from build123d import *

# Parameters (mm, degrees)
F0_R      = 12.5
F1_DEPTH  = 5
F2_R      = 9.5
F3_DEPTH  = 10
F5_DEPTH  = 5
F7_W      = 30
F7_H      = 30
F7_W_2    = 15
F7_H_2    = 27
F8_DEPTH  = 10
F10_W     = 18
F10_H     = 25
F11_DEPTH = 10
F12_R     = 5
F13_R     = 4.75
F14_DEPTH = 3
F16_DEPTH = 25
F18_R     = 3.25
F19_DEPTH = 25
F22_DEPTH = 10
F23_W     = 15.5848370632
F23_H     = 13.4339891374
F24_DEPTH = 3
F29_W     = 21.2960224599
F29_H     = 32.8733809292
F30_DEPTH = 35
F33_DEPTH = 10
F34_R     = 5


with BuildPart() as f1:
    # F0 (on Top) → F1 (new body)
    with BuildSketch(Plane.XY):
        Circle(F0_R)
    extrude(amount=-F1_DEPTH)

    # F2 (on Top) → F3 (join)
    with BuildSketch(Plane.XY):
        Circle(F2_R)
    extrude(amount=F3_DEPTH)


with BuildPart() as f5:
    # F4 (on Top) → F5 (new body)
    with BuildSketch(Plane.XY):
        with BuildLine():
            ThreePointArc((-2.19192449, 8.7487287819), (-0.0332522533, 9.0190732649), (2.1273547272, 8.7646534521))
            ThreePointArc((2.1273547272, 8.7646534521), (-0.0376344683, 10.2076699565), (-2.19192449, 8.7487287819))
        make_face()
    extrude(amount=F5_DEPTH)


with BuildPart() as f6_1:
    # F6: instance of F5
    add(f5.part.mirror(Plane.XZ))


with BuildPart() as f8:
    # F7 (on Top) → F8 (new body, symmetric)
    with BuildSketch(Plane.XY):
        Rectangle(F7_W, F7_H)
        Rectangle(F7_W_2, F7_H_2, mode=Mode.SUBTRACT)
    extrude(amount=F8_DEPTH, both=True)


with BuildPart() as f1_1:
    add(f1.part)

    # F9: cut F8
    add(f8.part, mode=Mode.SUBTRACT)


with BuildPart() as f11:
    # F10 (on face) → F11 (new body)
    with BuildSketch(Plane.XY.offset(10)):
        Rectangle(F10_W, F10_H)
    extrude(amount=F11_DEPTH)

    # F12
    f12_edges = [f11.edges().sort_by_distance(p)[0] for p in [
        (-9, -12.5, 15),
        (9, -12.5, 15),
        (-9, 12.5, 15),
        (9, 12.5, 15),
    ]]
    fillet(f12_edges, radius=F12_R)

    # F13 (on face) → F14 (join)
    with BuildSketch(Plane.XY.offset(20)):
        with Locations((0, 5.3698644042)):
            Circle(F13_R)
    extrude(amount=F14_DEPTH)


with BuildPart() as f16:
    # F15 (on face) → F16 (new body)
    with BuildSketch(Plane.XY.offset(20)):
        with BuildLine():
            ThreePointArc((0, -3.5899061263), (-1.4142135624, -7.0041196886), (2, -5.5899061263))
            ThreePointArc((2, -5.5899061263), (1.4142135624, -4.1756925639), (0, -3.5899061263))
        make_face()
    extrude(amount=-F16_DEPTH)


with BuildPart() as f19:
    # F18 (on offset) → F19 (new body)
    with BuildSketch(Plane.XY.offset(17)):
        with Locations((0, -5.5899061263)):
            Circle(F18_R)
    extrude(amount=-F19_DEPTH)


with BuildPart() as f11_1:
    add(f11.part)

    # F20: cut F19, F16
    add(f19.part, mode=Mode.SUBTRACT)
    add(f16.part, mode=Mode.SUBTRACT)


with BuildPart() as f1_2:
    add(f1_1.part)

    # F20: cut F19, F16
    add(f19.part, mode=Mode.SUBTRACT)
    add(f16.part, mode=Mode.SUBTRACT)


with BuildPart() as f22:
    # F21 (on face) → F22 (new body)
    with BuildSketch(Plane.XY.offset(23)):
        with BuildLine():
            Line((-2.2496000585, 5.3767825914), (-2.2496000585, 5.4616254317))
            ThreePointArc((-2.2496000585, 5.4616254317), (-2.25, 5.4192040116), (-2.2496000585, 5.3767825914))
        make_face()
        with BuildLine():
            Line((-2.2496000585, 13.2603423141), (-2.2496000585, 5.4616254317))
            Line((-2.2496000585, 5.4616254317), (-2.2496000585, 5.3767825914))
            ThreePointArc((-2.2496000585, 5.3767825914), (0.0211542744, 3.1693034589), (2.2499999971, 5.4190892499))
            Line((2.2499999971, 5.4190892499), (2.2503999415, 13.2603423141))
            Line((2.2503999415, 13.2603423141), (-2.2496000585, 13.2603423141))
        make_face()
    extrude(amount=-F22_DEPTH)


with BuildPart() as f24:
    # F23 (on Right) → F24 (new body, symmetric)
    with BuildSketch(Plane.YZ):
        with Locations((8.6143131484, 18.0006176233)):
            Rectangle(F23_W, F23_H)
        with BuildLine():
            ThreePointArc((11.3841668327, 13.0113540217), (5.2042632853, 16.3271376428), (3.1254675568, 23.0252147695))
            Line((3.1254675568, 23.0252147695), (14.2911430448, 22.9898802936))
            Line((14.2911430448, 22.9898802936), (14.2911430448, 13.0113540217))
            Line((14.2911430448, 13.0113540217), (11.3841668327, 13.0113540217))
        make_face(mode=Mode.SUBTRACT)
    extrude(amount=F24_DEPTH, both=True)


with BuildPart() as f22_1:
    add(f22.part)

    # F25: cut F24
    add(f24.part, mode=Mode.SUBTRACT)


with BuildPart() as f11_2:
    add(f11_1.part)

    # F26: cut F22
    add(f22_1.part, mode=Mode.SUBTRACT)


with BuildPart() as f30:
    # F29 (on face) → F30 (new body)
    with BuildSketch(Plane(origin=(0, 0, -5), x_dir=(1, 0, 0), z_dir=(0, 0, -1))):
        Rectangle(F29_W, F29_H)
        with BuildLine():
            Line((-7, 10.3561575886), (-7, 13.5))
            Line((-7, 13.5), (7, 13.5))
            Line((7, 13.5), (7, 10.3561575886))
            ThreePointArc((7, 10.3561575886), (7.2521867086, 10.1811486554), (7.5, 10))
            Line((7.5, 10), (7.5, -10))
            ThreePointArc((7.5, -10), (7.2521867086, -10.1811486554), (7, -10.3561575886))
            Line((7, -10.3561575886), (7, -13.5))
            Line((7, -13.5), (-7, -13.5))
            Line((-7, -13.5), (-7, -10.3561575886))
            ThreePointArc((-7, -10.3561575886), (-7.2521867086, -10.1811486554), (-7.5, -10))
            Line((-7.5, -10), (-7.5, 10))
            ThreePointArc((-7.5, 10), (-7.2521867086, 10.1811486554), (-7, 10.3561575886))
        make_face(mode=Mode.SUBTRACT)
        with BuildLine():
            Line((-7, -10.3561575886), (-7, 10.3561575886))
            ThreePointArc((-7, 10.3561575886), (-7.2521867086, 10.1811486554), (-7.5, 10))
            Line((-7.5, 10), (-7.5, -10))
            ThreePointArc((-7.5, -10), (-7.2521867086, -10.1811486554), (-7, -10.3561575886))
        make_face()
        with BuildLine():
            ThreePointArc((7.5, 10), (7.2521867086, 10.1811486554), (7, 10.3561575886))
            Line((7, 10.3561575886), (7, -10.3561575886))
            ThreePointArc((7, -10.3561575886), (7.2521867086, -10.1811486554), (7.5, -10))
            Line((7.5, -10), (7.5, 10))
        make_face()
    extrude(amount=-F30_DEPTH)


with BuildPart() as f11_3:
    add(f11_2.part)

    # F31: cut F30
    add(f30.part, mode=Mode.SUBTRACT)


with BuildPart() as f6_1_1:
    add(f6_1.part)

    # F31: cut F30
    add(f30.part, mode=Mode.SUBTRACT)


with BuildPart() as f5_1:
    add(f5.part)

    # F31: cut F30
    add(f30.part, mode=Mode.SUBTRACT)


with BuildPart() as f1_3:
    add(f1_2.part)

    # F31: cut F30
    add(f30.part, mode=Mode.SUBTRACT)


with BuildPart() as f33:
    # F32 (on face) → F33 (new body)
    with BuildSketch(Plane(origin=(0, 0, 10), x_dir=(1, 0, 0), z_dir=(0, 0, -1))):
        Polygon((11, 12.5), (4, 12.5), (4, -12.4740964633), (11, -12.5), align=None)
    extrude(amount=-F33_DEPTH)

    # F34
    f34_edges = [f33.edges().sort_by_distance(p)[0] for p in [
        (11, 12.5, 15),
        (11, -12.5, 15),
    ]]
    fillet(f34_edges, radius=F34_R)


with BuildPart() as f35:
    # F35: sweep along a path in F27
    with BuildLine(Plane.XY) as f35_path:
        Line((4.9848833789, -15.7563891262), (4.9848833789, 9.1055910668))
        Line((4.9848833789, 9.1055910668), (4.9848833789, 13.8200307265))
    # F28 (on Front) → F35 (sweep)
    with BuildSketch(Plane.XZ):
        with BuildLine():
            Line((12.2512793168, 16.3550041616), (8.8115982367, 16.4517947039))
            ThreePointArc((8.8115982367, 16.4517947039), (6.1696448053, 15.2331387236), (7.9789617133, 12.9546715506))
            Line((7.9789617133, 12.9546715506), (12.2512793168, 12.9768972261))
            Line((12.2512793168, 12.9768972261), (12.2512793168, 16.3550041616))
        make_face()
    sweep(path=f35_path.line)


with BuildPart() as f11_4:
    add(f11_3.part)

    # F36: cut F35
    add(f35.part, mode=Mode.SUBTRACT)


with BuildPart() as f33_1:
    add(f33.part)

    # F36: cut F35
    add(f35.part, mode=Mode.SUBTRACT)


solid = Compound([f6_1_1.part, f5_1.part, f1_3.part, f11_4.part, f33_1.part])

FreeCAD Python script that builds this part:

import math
import FreeCAD as App
import Part
import Sketcher

V = App.Vector


def edges_at(feature, points):
    """Names of the edges that pass closest to the given points."""
    edges = feature.Shape.Edges
    near = lambda p: min(range(len(edges)), key=lambda i: edges[i].distToShape(Part.Vertex(*p))[0])
    return sorted({f"Edge{near(p) + 1}" for p in points})

doc = App.newDocument("Part")
body = doc.addObject("PartDesign::Body", "Body")

sketch1 = body.newObject("Sketcher::SketchObject", "Sketch")
sketch1.AttachmentSupport = (doc.getObject("XY_Plane"), [""])
sketch1.MapMode = "FlatFace"
sketch1.addGeometry(Part.Circle(V(0, 0, 0), V(0, 0, 1), 12.5), False)
sketch1.addConstraint([
    Sketcher.Constraint("Coincident", 0, 3, -1, 1),
    Sketcher.Constraint("Diameter", 0, 25.0),
])
pad1 = body.newObject("PartDesign::Pad", "Pad")
pad1.Profile = sketch1
pad1.Length = 5
pad1.Reversed = True

sketch2 = body.newObject("Sketcher::SketchObject", "Sketch001")
sketch2.AttachmentSupport = (doc.getObject("XY_Plane"), [""])
sketch2.MapMode = "FlatFace"
sketch2.addGeometry(Part.Circle(V(0, 0, 0), V(0, 0, 1), 9.5), False)
sketch2.addConstraint([
    Sketcher.Constraint("Coincident", 0, 3, -1, 1),
    Sketcher.Constraint("Diameter", 0, 19.0),
])
pad2 = body.newObject("PartDesign::Pad", "Pad001")
pad2.Profile = sketch2
pad2.Length = 10
body2 = doc.addObject("PartDesign::Body", "Body001")

sketch3 = body2.newObject("Sketcher::SketchObject", "Sketch002")
sketch3.AttachmentSupport = (doc.getObject("XY_Plane001"), [""])
sketch3.MapMode = "FlatFace"
sketch3.addGeometry([
    Part.ArcOfCircle(Part.Circle(V(0, 0, 0), V(0, 0, 1), 9.019135), math.radians(76.357013), math.radians(104.06547)),
    Part.ArcOfCircle(Part.Circle(V(-0.029034, 7.874975, 0), V(0, 0, 1), 2.332711), math.radians(22.41997), math.radians(158.002514)),
], False)
sketch3.addConstraint([
    Sketcher.Constraint("Coincident", 0, 1, 1, 1),
    Sketcher.Constraint("Coincident", 1, 2, 0, 2),
    Sketcher.Constraint("Coincident", 0, 3, -1, 1),
    Sketcher.Constraint("Radius", 1, 2.332711),
    Sketcher.Constraint("Radius", 0, 9.019135),
    Sketcher.Constraint("DistanceY", -1, 1, 1, 2, 8.748729),
    Sketcher.Constraint("DistanceX", 1, 3, 0, 1, 2.156389),
])
pad3 = body2.newObject("PartDesign::Pad", "Pad002")
pad3.Profile = sketch3
pad3.Length = 5
body3 = doc.addObject("PartDesign::Body", "Body002")
doc.recompute()

mirroring = doc.addObject("Part::Mirroring", "Mirroring")
mirroring.Source = body2
mirroring.Base = V(0, 0, 0)
mirroring.Normal = V(0, -1, 0)
body3.BaseFeature = mirroring
doc.recompute()
body4 = doc.addObject("PartDesign::Body", "Body003")

sketch4 = body4.newObject("Sketcher::SketchObject", "Sketch003")
sketch4.AttachmentSupport = (doc.getObject("XY_Plane003"), [""])
sketch4.MapMode = "FlatFace"
sketch4.addGeometry([
    Part.LineSegment(V(-15, 15, 0), V(-15, -15, 0)),
    Part.LineSegment(V(-15, -15, 0), V(15, -15, 0)),
    Part.LineSegment(V(15, -15, 0), V(15, 15, 0)),
    Part.LineSegment(V(15, 15, 0), V(-15, 15, 0)),
    Part.LineSegment(V(7.5, -13.5, 0), V(-7.5, -13.5, 0)),
    Part.LineSegment(V(-7.5, -13.5, 0), V(-7.5, 13.5, 0)),
    Part.LineSegment(V(-7.5, 13.5, 0), V(7.5, 13.5, 0)),
    Part.LineSegment(V(7.5, 13.5, 0), V(7.5, -13.5, 0)),
], False)
sketch4.addConstraint([
    Sketcher.Constraint("Coincident", 0, 2, 1, 1),
    Sketcher.Constraint("Coincident", 1, 2, 2, 1),
    Sketcher.Constraint("Coincident", 2, 2, 3, 1),
    Sketcher.Constraint("Coincident", 3, 2, 0, 1),
    Sketcher.Constraint("Coincident", 4, 2, 5, 1),
    Sketcher.Constraint("Coincident", 5, 2, 6, 1),
    Sketcher.Constraint("Coincident", 6, 2, 7, 1),
    Sketcher.Constraint("Coincident", 7, 2, 4, 1),
    Sketcher.Constraint("Vertical", 0),
    Sketcher.Constraint("Horizontal", 1),
    Sketcher.Constraint("Vertical", 2),
    Sketcher.Constraint("Horizontal", 3),
    Sketcher.Constraint("Horizontal", 4),
    Sketcher.Constraint("Vertical", 5),
    Sketcher.Constraint("Horizontal", 6),
    Sketcher.Constraint("Vertical", 7),
    Sketcher.Constraint("Symmetric", 0, 2, 2, 2, -1, 1),
    Sketcher.Constraint("Symmetric", 4, 2, 6, 2, -1, 1),
    Sketcher.Constraint("Equal", 3, 0),
    Sketcher.Constraint("DistanceX", 1, 1, 1, 2, 30.0),
    Sketcher.Constraint("DistanceX", 4, 2, 4, 1, 15.0),
    Sketcher.Constraint("DistanceY", 5, 1, 5, 2, 27.0),
])
pad4 = body4.newObject("PartDesign::Pad", "Pad003")
pad4.Profile = sketch4
pad4.Length = 20
pad4.Midplane = True
doc.recompute()

boolean = body.newObject("PartDesign::Boolean", "Boolean")
boolean.Type = "Cut"
boolean.addObjects([body4])
body5 = doc.addObject("PartDesign::Body", "Body004")

sketch5 = body5.newObject("Sketcher::SketchObject", "Sketch004")
sketch5.AttachmentSupport = (doc.getObject("XY_Plane004"), [""])
sketch5.MapMode = "FlatFace"
sketch5.AttachmentOffset = App.Placement(V(0, 0, 10), App.Rotation())
sketch5.addGeometry([
    Part.LineSegment(V(-9, 12.5, 0), V(-9, -12.5, 0)),
    Part.LineSegment(V(-9, -12.5, 0), V(9, -12.5, 0)),
    Part.LineSegment(V(9, -12.5, 0), V(9, 12.5, 0)),
    Part.LineSegment(V(9, 12.5, 0), V(-9, 12.5, 0)),
], False)
sketch5.addConstraint([
    Sketcher.Constraint("Coincident", 0, 2, 1, 1),
    Sketcher.Constraint("Coincident", 1, 2, 2, 1),
    Sketcher.Constraint("Coincident", 2, 2, 3, 1),
    Sketcher.Constraint("Coincident", 3, 2, 0, 1),
    Sketcher.Constraint("Vertical", 0),
    Sketcher.Constraint("Horizontal", 1),
    Sketcher.Constraint("Vertical", 2),
    Sketcher.Constraint("Horizontal", 3),
    Sketcher.Constraint("Symmetric", 0, 2, 2, 2, -1, 1),
    Sketcher.Constraint("DistanceX", 1, 1, 1, 2, 18.0),
    Sketcher.Constraint("DistanceY", 0, 2, 0, 1, 25.0),
])
pad5 = body5.newObject("PartDesign::Pad", "Pad004")
pad5.Profile = sketch5
pad5.Length = 10
doc.recompute()

fillet = body5.newObject("PartDesign::Fillet", "Fillet")
fillet.Base = (pad5, edges_at(pad5, [
    (-9, -12.5, 15),
    (9, -12.5, 15),
    (-9, 12.5, 15),
    (9, 12.5, 15),
]))
fillet.Radius = 5

sketch6 = body5.newObject("Sketcher::SketchObject", "Sketch005")
sketch6.AttachmentSupport = (doc.getObject("XY_Plane004"), [""])
sketch6.MapMode = "FlatFace"
sketch6.AttachmentOffset = App.Placement(V(0, 0, 20), App.Rotation())
sketch6.addGeometry(Part.Circle(V(0, 5.369864, 0), V(0, 0, 1), 4.75), False)
sketch6.addConstraint([
    Sketcher.Constraint("PointOnObject", 0, 3, -2),
    Sketcher.Constraint("Diameter", 0, 9.5),
    Sketcher.Constraint("DistanceY", -1, 1, 0, 3, 5.369864),
])
pad6 = body5.newObject("PartDesign::Pad", "Pad005")
pad6.Profile = sketch6
pad6.Length = 3
body6 = doc.addObject("PartDesign::Body", "Body005")

sketch7 = body6.newObject("Sketcher::SketchObject", "Sketch006")
sketch7.AttachmentSupport = (doc.getObject("XY_Plane005"), [""])
sketch7.MapMode = "FlatFace"
sketch7.AttachmentOffset = App.Placement(V(0, 0, 20), App.Rotation())
sketch7.addGeometry([
    Part.ArcOfCircle(Part.Circle(V(0, -5.589906, 0), V(0, 0, 1), 2), math.radians(90), math.radians(360)),
    Part.ArcOfCircle(Part.Circle(V(0, -5.589906, 0), V(0, 0, 1), 2), math.radians(0), math.radians(90)),
], False)
sketch7.addConstraint([
    Sketcher.Constraint("Tangent", 0, 1, 1, 2),
    Sketcher.Constraint("Coincident", 1, 1, 0, 2),
    Sketcher.Constraint("PointOnObject", 0, 3, -2),
    Sketcher.Constraint("PointOnObject", 0, 1, -2),
    Sketcher.Constraint("Horizontal", 0, 3, 1, 1),
    Sketcher.Constraint("Radius", 0, 2.0),
    Sketcher.Constraint("DistanceY", 0, 3, -1, 1, 5.589906),
])
pad7 = body6.newObject("PartDesign::Pad", "Pad006")
pad7.Profile = sketch7
pad7.Length = 25
pad7.Reversed = True
body7 = doc.addObject("PartDesign::Body", "Body006")

sketch8 = body7.newObject("Sketcher::SketchObject", "Sketch007")
sketch8.AttachmentSupport = (doc.getObject("XY_Plane006"), [""])
sketch8.MapMode = "FlatFace"
sketch8.AttachmentOffset = App.Placement(V(0, 0, 17), App.Rotation())
sketch8.addGeometry(Part.Circle(V(0, -5.589906, 0), V(0, 0, 1), 3.25), False)
sketch8.addConstraint([
    Sketcher.Constraint("PointOnObject", 0, 3, -2),
    Sketcher.Constraint("Diameter", 0, 6.5),
    Sketcher.Constraint("DistanceY", 0, 3, -1, 1, 5.589906),
])
pad8 = body7.newObject("PartDesign::Pad", "Pad007")
pad8.Profile = sketch8
pad8.Length = 25
pad8.Reversed = True
doc.recompute()

body8 = doc.addObject("PartDesign::Body", "Body007")
body8.BaseFeature = body7
boolean2 = body5.newObject("PartDesign::Boolean", "Boolean001")
boolean2.Type = "Cut"
boolean2.addObjects([body8])
doc.recompute()

body9 = doc.addObject("PartDesign::Body", "Body008")
body9.BaseFeature = body6
boolean3 = body5.newObject("PartDesign::Boolean", "Boolean002")
boolean3.Type = "Cut"
boolean3.addObjects([body9])
doc.recompute()

boolean4 = body.newObject("PartDesign::Boolean", "Boolean003")
boolean4.Type = "Cut"
boolean4.addObjects([body7])
doc.recompute()

boolean5 = body.newObject("PartDesign::Boolean", "Boolean004")
boolean5.Type = "Cut"
boolean5.addObjects([body6])
body10 = doc.addObject("PartDesign::Body", "Body009")

sketch9 = body10.newObject("Sketcher::SketchObject", "Sketch008")
sketch9.AttachmentSupport = (doc.getObject("XY_Plane009"), [""])
sketch9.MapMode = "FlatFace"
sketch9.AttachmentOffset = App.Placement(V(0, 0, 23), App.Rotation())
sketch9.addGeometry([
    Part.ArcOfCircle(Part.Circle(V(0, 5.419204, 0), V(0, 0, 1), 2.25), math.radians(178.919683), math.radians(181.080317)),
    Part.ArcOfCircle(Part.Circle(V(0, 5.419204, 0), V(0, 0, 1), 2.25), math.radians(-178.919683), math.radians(-0.002922)),
    Part.LineSegment(V(2.25, 5.419089, 0), V(2.2504, 13.260342, 0)),
    Part.LineSegment(V(2.2504, 13.260342, 0), V(-2.2496, 13.260342, 0)),
    Part.LineSegment(V(-2.2496, 13.260342, 0), V(-2.2496, 5.461625, 0)),
], False)
sketch9.addConstraint([
    Sketcher.Constraint("Tangent", 0, 2, 1, 1),
    Sketcher.Constraint("Tangent", 1, 2, 2, 1),
    Sketcher.Constraint("Coincident", 2, 2, 3, 1),
    Sketcher.Constraint("Coincident", 3, 2, 4, 1),
    Sketcher.Constraint("Coincident", 4, 2, 0, 1),
    Sketcher.Constraint("Horizontal", 3),
    Sketcher.Constraint("Vertical", 4),
    Sketcher.Constraint("Equal", 0, 1),
    Sketcher.Constraint("PointOnObject", 0, 3, -2),
    Sketcher.Constraint("Vertical", 0, 2, 3, 2),
    Sketcher.Constraint("Radius", 0, 2.25),
    Sketcher.Constraint("DistanceX", 3, 2, 3, 1, 4.5),
    Sketcher.Constraint("DistanceX", 0, 2, -1, 1, 2.2496),
    Sketcher.Constraint("DistanceY", 4, 2, 4, 1, 7.798717),
    Sketcher.Constraint("DistanceY", -1, 1, 1, 2, 5.419089),
])
pad9 = body10.newObject("PartDesign::Pad", "Pad008")
pad9.Profile = sketch9
pad9.Length = 10
pad9.Reversed = True
body11 = doc.addObject("PartDesign::Body", "Body010")

sketch10 = body11.newObject("Sketcher::SketchObject", "Sketch009")
sketch10.AttachmentSupport = (doc.getObject("YZ_Plane010"), [""])
sketch10.MapMode = "FlatFace"
sketch10.addGeometry([
    Part.LineSegment(V(0.821895, 24.717612, 0), V(0.821895, 11.283623, 0)),
    Part.LineSegment(V(0.821895, 11.283623, 0), V(16.406732, 11.283623, 0)),
    Part.LineSegment(V(16.406732, 11.283623, 0), V(16.406732, 24.717612, 0)),
    Part.LineSegment(V(16.406732, 24.717612, 0), V(0.821895, 24.717612, 0)),
    Part.LineSegment(V(14.291143, 13.011354, 0), V(11.384167, 13.011354, 0)),
    Part.ArcOfCircle(Part.Circle(V(12.342365, 22.214121, 0), V(0, 0, 1), 9.252517), math.radians(174.970885), math.radians(264.055747)),
    Part.LineSegment(V(3.125468, 23.025215, 0), V(14.291143, 22.98988, 0)),
    Part.LineSegment(V(14.291143, 22.98988, 0), V(14.291143, 13.011354, 0)),
], False)
sketch10.addConstraint([
    Sketcher.Constraint("Coincident", 0, 2, 1, 1),
    Sketcher.Constraint("Coincident", 1, 2, 2, 1),
    Sketcher.Constraint("Coincident", 2, 2, 3, 1),
    Sketcher.Constraint("Coincident", 3, 2, 0, 1),
    Sketcher.Constraint("Coincident", 4, 2, 5, 2),
    Sketcher.Constraint("Coincident", 5, 1, 6, 1),
    Sketcher.Constraint("Coincident", 6, 2, 7, 1),
    Sketcher.Constraint("Coincident", 7, 2, 4, 1),
    Sketcher.Constraint("Vertical", 0),
    Sketcher.Constraint("Horizontal", 1),
    Sketcher.Constraint("Vertical", 2),
    Sketcher.Constraint("Horizontal", 3),
    Sketcher.Constraint("Horizontal", 4),
    Sketcher.Constraint("Vertical", 7),
    Sketcher.Constraint("Radius", 5, 9.252517),
    Sketcher.Constraint("DistanceY", 0, 2, 0, 1, 13.433989),
    Sketcher.Constraint("DistanceY", 0, 2, 5, 3, 10.930498),
    Sketcher.Constraint("DistanceX", 5, 1, 4, 2, 8.258699),
    Sketcher.Constraint("Distance", 6, 11.165731),
    Sketcher.Constraint("DistanceX", 1, 1, 1, 2, 15.584837),
    Sketcher.Constraint("DistanceX", 4, 2, 4, 1, 2.906976),
    Sketcher.Constraint("DistanceY", 7, 2, 7, 1, 9.978526),
    Sketcher.Constraint("DistanceY", -1, 1, 5, 3, 22.214121),
    Sketcher.Constraint("DistanceX", -1, 1, 1, 2, 16.406732),
    Sketcher.Constraint("DistanceX", 0, 2, 5, 3, 11.52047),
])
pad10 = body11.newObject("PartDesign::Pad", "Pad009")
pad10.Profile = sketch10
pad10.Length = 6
pad10.Midplane = True
doc.recompute()

boolean6 = body10.newObject("PartDesign::Boolean", "Boolean005")
boolean6.Type = "Cut"
boolean6.addObjects([body11])
doc.recompute()

boolean7 = body5.newObject("PartDesign::Boolean", "Boolean006")
boolean7.Type = "Cut"
boolean7.addObjects([body10])
body12 = doc.addObject("PartDesign::Body", "Body011")

sketch11 = body12.newObject("Sketcher::SketchObject", "Sketch010")
sketch11.AttachmentSupport = (doc.getObject("XY_Plane011"), [""])
sketch11.MapMode = "FlatFace"
sketch11.AttachmentOffset = App.Placement(V(0, 0, -5), App.Rotation())
sketch11.addGeometry([
    Part.LineSegment(V(-10.648011, -16.43669, 0), V(-10.648011, 16.43669, 0)),
    Part.LineSegment(V(-10.648011, 16.43669, 0), V(10.648011, 16.43669, 0)),
    Part.LineSegment(V(10.648011, 16.43669, 0), V(10.648011, -16.43669, 0)),
    Part.LineSegment(V(10.648011, -16.43669, 0), V(-10.648011, -16.43669, 0)),
    Part.LineSegment(V(-7, 13.5, 0), V(-7, -13.5, 0)),
    Part.LineSegment(V(-7, -13.5, 0), V(7, -13.5, 0)),
    Part.LineSegment(V(7, -13.5, 0), V(7, 13.5, 0)),
    Part.LineSegment(V(7, 13.5, 0), V(-7, 13.5, 0)),
], False)
sketch11.addConstraint([
    Sketcher.Constraint("Coincident", 0, 2, 1, 1),
    Sketcher.Constraint("Coincident", 1, 2, 2, 1),
    Sketcher.Constraint("Coincident", 2, 2, 3, 1),
    Sketcher.Constraint("Coincident", 3, 2, 0, 1),
    Sketcher.Constraint("Coincident", 4, 2, 5, 1),
    Sketcher.Constraint("Coincident", 5, 2, 6, 1),
    Sketcher.Constraint("Coincident", 6, 2, 7, 1),
    Sketcher.Constraint("Coincident", 7, 2, 4, 1),
    Sketcher.Constraint("Vertical", 0),
    Sketcher.Constraint("Horizontal", 1),
    Sketcher.Constraint("Vertical", 2),
    Sketcher.Constraint("Horizontal", 3),
    Sketcher.Constraint("Vertical", 4),
    Sketcher.Constraint("Horizontal", 5),
    Sketcher.Constraint("Vertical", 6),
    Sketcher.Constraint("Horizontal", 7),
    Sketcher.Constraint("Symmetric", 0, 2, 2, 2, -1, 1),
    Sketcher.Constraint("Symmetric", 4, 2, 6, 2, -1, 1),
    Sketcher.Constraint("DistanceX", 5, 1, 5, 2, 14.0),
    Sketcher.Constraint("DistanceY", 4, 2, 4, 1, 27.0),
    Sketcher.Constraint("DistanceY", 0, 1, 0, 2, 32.873381),
    Sketcher.Constraint("DistanceX", 1, 1, 1, 2, 21.296022),
])
pad11 = body12.newObject("PartDesign::Pad", "Pad010")
pad11.Profile = sketch11
pad11.Length = 35
doc.recompute()

body13 = doc.addObject("PartDesign::Body", "Body012")
body13.BaseFeature = body12
boolean8 = body5.newObject("PartDesign::Boolean", "Boolean007")
boolean8.Type = "Cut"
boolean8.addObjects([body13])
doc.recompute()

body14 = doc.addObject("PartDesign::Body", "Body013")
body14.BaseFeature = body12
boolean9 = body3.newObject("PartDesign::Boolean", "Boolean008")
boolean9.Type = "Cut"
boolean9.addObjects([body14])
doc.recompute()

body15 = doc.addObject("PartDesign::Body", "Body014")
body15.BaseFeature = body12
boolean10 = body2.newObject("PartDesign::Boolean", "Boolean009")
boolean10.Type = "Cut"
boolean10.addObjects([body15])
doc.recompute()

boolean11 = body.newObject("PartDesign::Boolean", "Boolean010")
boolean11.Type = "Cut"
boolean11.addObjects([body12])
body16 = doc.addObject("PartDesign::Body", "Body015")

sketch12 = body16.newObject("Sketcher::SketchObject", "Sketch011")
sketch12.AttachmentSupport = (doc.getObject("XY_Plane015"), [""])
sketch12.MapMode = "FlatFace"
sketch12.AttachmentOffset = App.Placement(V(0, 0, 10), App.Rotation())
sketch12.addGeometry([
    Part.LineSegment(V(11, -12.5, 0), V(4, -12.5, 0)),
    Part.LineSegment(V(4, -12.5, 0), V(4, 12.474096, 0)),
    Part.LineSegment(V(4, 12.474096, 0), V(11, 12.5, 0)),
    Part.LineSegment(V(11, 12.5, 0), V(11, -12.5, 0)),
], False)
sketch12.addConstraint([
    Sketcher.Constraint("Coincident", 0, 2, 1, 1),
    Sketcher.Constraint("Coincident", 1, 2, 2, 1),
    Sketcher.Constraint("Coincident", 2, 2, 3, 1),
    Sketcher.Constraint("Coincident", 3, 2, 0, 1),
    Sketcher.Constraint("Horizontal", 0),
    Sketcher.Constraint("Vertical", 1),
    Sketcher.Constraint("Vertical", 3),
    Sketcher.Constraint("DistanceX", 0, 2, 0, 1, 7.0),
    Sketcher.Constraint("DistanceY", 3, 2, 3, 1, 25.0),
    Sketcher.Constraint("DistanceX", -1, 1, 0, 2, 4.0),
    Sketcher.Constraint("DistanceY", 0, 2, -1, 1, 12.5),
    Sketcher.Constraint("DistanceY", 1, 1, 1, 2, 24.974096),
])
pad12 = body16.newObject("PartDesign::Pad", "Pad011")
pad12.Profile = sketch12
pad12.Length = 10
doc.recompute()

fillet2 = body16.newObject("PartDesign::Fillet", "Fillet001")
fillet2.Base = (pad12, edges_at(pad12, [(11, 12.5, 15), (11, -12.5, 15)]))
fillet2.Radius = 5
body17 = doc.addObject("PartDesign::Body", "Body016")

sketch13 = body17.newObject("Sketcher::SketchObject", "Sketch012")
sketch13.AttachmentSupport = (doc.getObject("XZ_Plane016"), [""])
sketch13.MapMode = "FlatFace"
sketch13.addGeometry([
    Part.LineSegment(V(12.251279, 16.355004, 0), V(8.811598, 16.451795, 0)),
    Part.ArcOfCircle(Part.Circle(V(7.969338, 14.804647, 0), V(0, 0, 1), 1.85), math.radians(62.917307), math.radians(270.298064)),
    Part.LineSegment(V(7.978962, 12.954672, 0), V(12.251279, 12.976897, 0)),
    Part.LineSegment(V(12.251279, 12.976897, 0), V(12.251279, 16.355004, 0)),
], False)
sketch13.addConstraint([
    Sketcher.Constraint("Coincident", 0, 2, 1, 1),
    Sketcher.Constraint("Tangent", 1, 2, 2, 1),
    Sketcher.Constraint("Coincident", 2, 2, 3, 1),
    Sketcher.Constraint("Coincident", 3, 2, 0, 1),
    Sketcher.Constraint("Vertical", 3),
    Sketcher.Constraint("Radius", 1, 1.85),
    Sketcher.Constraint("DistanceX", -1, 1, 0, 2, 8.811598),
    Sketcher.Constraint("DistanceY", 3, 1, 3, 2, 3.378107),
    Sketcher.Constraint("DistanceX", -1, 1, 1, 2, 7.978962),
    Sketcher.Constraint("DistanceY", -1, 1, 1, 2, 12.954672),
    Sketcher.Constraint("DistanceX", -1, 1, 2, 2, 12.251279),
    Sketcher.Constraint("DistanceX", 1, 3, 0, 2, 0.842261),
])

sketch14 = body17.newObject("Sketcher::SketchObject", "Sketch013")
sketch14.AttachmentSupport = (doc.getObject("XY_Plane016"), [""])
sketch14.MapMode = "FlatFace"
sketch14.addGeometry(Part.LineSegment(V(4.984883, -15.756389, 0), V(4.984883, 13.820031, 0)), False)
sketch14.addConstraint([
    Sketcher.Constraint("Vertical", 0),
    Sketcher.Constraint("DistanceY", 0, 1, 0, 2, 29.57642),
    Sketcher.Constraint("DistanceY", 0, 1, -1, 1, 15.756389),
    Sketcher.Constraint("DistanceX", -1, 1, 0, 1, 4.984883),
])
doc.recompute()

additivepipe = body17.newObject("PartDesign::AdditivePipe", "AdditivePipe")
additivepipe.Profile = sketch13
additivepipe.Spine = (sketch14, ["Edge1"])
doc.recompute()

body18 = doc.addObject("PartDesign::Body", "Body017")
body18.BaseFeature = body17
boolean12 = body5.newObject("PartDesign::Boolean", "Boolean011")
boolean12.Type = "Cut"
boolean12.addObjects([body18])
doc.recompute()

boolean13 = body16.newObject("PartDesign::Boolean", "Boolean012")
boolean13.Type = "Cut"
boolean13.addObjects([body17])
mirroring.Visibility = False

doc.recompute()
